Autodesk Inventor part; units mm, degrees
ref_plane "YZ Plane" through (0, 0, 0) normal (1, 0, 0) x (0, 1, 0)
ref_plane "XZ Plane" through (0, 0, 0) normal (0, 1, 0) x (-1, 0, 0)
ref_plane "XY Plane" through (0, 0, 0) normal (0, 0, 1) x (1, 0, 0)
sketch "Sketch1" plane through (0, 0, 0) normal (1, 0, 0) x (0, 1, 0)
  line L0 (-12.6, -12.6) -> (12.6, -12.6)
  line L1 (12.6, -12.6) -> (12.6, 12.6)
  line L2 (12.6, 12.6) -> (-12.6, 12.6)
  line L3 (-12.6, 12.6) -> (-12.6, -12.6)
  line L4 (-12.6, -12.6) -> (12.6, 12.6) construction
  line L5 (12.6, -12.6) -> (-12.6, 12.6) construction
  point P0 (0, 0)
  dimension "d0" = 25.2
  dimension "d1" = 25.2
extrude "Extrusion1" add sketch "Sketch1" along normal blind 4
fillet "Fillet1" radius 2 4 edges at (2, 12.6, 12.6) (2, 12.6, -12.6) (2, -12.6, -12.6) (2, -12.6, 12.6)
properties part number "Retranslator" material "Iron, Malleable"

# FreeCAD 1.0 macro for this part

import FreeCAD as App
import Part
import Sketcher


def edges_at(feature, points):
    """Names of the edges that pass closest to the given points."""
    edges = feature.Shape.Edges
    near = lambda p: min(range(len(edges)), key=lambda i: edges[i].distToShape(Part.Vertex(*p))[0])
    return sorted({f"Edge{near(p) + 1}" for p in points})


def add_polygon(sketch, points):
    """Adds a closed chain of lines whose ends are joined by coincident constraints."""
    first, n = sketch.GeometryCount, len(points)
    for a, b in zip(points, points[1:] + points[:1]):
        sketch.addGeometry(Part.LineSegment(App.Vector(*a, 0), App.Vector(*b, 0)), False)
    for i in range(n):
        sketch.addConstraint(Sketcher.Constraint("Coincident", first + i, 2, first + (i + 1) % n, 1))

doc = App.newDocument("Part")
body = doc.addObject("PartDesign::Body", "Body")

# Sketch on YZ plane
sketch1 = body.newObject("Sketcher::SketchObject", "Sketch")
sketch1.AttachmentSupport = (doc.getObject("YZ_Plane"), [""])
sketch1.MapMode = "FlatFace"
add_polygon(sketch1, [(-13, 13), (-13, -13), (13, -13), (13, 13)])  # lines 0-3
sketch1.addConstraint([
    Sketcher.Constraint("Vertical", 0),
    Sketcher.Constraint("Horizontal", 1),
    Sketcher.Constraint("Vertical", 2),
    Sketcher.Constraint("Horizontal", 3),
    Sketcher.Constraint("Symmetric", 0, 2, 2, 2, -1, 1),
    Sketcher.Constraint("Equal", 3, 0),
    Sketcher.Constraint("DistanceX", 1, 1, 1, 2, 25.2),
])
pad1 = body.newObject("PartDesign::Pad", "Pad")
pad1.Profile = sketch1
pad1.Length = 4
doc.recompute()

fillet = body.newObject("PartDesign::Fillet", "Fillet")
fillet.Base = (pad1, edges_at(pad1, [
    (2, 12.6, 12.6),
    (2, 12.6, -12.6),
    (2, -12.6, -12.6),
    (2, -12.6, 12.6),
]))
fillet.Radius = 2

doc.recompute()
